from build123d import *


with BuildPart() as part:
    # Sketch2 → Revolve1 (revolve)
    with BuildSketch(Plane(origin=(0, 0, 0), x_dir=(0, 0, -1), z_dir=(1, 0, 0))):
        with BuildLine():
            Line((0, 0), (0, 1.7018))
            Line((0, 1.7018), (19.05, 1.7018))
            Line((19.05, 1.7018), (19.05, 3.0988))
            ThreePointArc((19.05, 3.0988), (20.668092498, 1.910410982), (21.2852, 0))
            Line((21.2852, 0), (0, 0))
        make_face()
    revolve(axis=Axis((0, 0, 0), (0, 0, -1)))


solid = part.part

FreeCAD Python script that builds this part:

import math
import FreeCAD as App
import Part
import Sketcher
from FreeCAD import Vector
Q = App.Units.Quantity

doc = App.newDocument("Part")
body = doc.addObject("PartDesign::Body", "Body")

# Sketch on YZ plane
sketch1 = doc.addObject("Sketcher::SketchObject", "Sketch")
body.addObject(sketch1)
sketch1.AttachmentSupport = (doc.YZ_Plane, [""])
sketch1.MapMode = "FlatFace"
sketch1.addGeometry([
    Part.LineSegment(Vector(1.7018, 0, 0), Vector(0, 0, 0)),  # 0
    Part.LineSegment(Vector(0, 0, 0), Vector(0, -21.2852, 0)),  # 1
    Part.ArcOfCircle(Part.Circle(Vector(0, -18.019568, 0), Vector(0, 0, 1), 3.265632), math.radians(-90), math.radians(-18.393312)),  # 2
    Part.LineSegment(Vector(3.0988, -19.05, 0), Vector(1.7018, -19.05, 0)),  # 3
    Part.LineSegment(Vector(1.7018, -19.05, 0), Vector(1.7018, 0, 0)),  # 4
], False)
sketch1.addConstraint([
    Sketcher.Constraint("Coincident", 0, 2, 1, 1),
    Sketcher.Constraint("Coincident", 1, 2, 2, 1),
    Sketcher.Constraint("Coincident", 2, 2, 3, 1),
    Sketcher.Constraint("Coincident", 3, 2, 4, 1),
    Sketcher.Constraint("Coincident", 4, 2, 0, 1),
    Sketcher.Constraint("Horizontal", 0),
    Sketcher.Constraint("Vertical", 1),
    Sketcher.Constraint("Horizontal", 3),
    Sketcher.Constraint("Vertical", 4),
    Sketcher.Constraint("Coincident", 0, 2, -1, 1),
    Sketcher.Constraint("PointOnObject", 2, 3, -2),
    Sketcher.Constraint("DistanceY", 4, 1, 4, 2, Q("0.75 in")),
    Sketcher.Constraint("DistanceX", 0, 2, 0, 1, Q("0.067 in")),
    Sketcher.Constraint("DistanceX", 3, 2, 3, 1, Q("0.055 in")),
    Sketcher.Constraint("DistanceY", 1, 2, 1, 1, Q("0.838 in")),
])
revolution = doc.addObject("PartDesign::Revolution", "Revolution")
body.addObject(revolution)
revolution.Profile = sketch1
revolution.ReferenceAxis = (sketch1, ["V_Axis"])
revolution.Angle = 360

doc.recompute()
